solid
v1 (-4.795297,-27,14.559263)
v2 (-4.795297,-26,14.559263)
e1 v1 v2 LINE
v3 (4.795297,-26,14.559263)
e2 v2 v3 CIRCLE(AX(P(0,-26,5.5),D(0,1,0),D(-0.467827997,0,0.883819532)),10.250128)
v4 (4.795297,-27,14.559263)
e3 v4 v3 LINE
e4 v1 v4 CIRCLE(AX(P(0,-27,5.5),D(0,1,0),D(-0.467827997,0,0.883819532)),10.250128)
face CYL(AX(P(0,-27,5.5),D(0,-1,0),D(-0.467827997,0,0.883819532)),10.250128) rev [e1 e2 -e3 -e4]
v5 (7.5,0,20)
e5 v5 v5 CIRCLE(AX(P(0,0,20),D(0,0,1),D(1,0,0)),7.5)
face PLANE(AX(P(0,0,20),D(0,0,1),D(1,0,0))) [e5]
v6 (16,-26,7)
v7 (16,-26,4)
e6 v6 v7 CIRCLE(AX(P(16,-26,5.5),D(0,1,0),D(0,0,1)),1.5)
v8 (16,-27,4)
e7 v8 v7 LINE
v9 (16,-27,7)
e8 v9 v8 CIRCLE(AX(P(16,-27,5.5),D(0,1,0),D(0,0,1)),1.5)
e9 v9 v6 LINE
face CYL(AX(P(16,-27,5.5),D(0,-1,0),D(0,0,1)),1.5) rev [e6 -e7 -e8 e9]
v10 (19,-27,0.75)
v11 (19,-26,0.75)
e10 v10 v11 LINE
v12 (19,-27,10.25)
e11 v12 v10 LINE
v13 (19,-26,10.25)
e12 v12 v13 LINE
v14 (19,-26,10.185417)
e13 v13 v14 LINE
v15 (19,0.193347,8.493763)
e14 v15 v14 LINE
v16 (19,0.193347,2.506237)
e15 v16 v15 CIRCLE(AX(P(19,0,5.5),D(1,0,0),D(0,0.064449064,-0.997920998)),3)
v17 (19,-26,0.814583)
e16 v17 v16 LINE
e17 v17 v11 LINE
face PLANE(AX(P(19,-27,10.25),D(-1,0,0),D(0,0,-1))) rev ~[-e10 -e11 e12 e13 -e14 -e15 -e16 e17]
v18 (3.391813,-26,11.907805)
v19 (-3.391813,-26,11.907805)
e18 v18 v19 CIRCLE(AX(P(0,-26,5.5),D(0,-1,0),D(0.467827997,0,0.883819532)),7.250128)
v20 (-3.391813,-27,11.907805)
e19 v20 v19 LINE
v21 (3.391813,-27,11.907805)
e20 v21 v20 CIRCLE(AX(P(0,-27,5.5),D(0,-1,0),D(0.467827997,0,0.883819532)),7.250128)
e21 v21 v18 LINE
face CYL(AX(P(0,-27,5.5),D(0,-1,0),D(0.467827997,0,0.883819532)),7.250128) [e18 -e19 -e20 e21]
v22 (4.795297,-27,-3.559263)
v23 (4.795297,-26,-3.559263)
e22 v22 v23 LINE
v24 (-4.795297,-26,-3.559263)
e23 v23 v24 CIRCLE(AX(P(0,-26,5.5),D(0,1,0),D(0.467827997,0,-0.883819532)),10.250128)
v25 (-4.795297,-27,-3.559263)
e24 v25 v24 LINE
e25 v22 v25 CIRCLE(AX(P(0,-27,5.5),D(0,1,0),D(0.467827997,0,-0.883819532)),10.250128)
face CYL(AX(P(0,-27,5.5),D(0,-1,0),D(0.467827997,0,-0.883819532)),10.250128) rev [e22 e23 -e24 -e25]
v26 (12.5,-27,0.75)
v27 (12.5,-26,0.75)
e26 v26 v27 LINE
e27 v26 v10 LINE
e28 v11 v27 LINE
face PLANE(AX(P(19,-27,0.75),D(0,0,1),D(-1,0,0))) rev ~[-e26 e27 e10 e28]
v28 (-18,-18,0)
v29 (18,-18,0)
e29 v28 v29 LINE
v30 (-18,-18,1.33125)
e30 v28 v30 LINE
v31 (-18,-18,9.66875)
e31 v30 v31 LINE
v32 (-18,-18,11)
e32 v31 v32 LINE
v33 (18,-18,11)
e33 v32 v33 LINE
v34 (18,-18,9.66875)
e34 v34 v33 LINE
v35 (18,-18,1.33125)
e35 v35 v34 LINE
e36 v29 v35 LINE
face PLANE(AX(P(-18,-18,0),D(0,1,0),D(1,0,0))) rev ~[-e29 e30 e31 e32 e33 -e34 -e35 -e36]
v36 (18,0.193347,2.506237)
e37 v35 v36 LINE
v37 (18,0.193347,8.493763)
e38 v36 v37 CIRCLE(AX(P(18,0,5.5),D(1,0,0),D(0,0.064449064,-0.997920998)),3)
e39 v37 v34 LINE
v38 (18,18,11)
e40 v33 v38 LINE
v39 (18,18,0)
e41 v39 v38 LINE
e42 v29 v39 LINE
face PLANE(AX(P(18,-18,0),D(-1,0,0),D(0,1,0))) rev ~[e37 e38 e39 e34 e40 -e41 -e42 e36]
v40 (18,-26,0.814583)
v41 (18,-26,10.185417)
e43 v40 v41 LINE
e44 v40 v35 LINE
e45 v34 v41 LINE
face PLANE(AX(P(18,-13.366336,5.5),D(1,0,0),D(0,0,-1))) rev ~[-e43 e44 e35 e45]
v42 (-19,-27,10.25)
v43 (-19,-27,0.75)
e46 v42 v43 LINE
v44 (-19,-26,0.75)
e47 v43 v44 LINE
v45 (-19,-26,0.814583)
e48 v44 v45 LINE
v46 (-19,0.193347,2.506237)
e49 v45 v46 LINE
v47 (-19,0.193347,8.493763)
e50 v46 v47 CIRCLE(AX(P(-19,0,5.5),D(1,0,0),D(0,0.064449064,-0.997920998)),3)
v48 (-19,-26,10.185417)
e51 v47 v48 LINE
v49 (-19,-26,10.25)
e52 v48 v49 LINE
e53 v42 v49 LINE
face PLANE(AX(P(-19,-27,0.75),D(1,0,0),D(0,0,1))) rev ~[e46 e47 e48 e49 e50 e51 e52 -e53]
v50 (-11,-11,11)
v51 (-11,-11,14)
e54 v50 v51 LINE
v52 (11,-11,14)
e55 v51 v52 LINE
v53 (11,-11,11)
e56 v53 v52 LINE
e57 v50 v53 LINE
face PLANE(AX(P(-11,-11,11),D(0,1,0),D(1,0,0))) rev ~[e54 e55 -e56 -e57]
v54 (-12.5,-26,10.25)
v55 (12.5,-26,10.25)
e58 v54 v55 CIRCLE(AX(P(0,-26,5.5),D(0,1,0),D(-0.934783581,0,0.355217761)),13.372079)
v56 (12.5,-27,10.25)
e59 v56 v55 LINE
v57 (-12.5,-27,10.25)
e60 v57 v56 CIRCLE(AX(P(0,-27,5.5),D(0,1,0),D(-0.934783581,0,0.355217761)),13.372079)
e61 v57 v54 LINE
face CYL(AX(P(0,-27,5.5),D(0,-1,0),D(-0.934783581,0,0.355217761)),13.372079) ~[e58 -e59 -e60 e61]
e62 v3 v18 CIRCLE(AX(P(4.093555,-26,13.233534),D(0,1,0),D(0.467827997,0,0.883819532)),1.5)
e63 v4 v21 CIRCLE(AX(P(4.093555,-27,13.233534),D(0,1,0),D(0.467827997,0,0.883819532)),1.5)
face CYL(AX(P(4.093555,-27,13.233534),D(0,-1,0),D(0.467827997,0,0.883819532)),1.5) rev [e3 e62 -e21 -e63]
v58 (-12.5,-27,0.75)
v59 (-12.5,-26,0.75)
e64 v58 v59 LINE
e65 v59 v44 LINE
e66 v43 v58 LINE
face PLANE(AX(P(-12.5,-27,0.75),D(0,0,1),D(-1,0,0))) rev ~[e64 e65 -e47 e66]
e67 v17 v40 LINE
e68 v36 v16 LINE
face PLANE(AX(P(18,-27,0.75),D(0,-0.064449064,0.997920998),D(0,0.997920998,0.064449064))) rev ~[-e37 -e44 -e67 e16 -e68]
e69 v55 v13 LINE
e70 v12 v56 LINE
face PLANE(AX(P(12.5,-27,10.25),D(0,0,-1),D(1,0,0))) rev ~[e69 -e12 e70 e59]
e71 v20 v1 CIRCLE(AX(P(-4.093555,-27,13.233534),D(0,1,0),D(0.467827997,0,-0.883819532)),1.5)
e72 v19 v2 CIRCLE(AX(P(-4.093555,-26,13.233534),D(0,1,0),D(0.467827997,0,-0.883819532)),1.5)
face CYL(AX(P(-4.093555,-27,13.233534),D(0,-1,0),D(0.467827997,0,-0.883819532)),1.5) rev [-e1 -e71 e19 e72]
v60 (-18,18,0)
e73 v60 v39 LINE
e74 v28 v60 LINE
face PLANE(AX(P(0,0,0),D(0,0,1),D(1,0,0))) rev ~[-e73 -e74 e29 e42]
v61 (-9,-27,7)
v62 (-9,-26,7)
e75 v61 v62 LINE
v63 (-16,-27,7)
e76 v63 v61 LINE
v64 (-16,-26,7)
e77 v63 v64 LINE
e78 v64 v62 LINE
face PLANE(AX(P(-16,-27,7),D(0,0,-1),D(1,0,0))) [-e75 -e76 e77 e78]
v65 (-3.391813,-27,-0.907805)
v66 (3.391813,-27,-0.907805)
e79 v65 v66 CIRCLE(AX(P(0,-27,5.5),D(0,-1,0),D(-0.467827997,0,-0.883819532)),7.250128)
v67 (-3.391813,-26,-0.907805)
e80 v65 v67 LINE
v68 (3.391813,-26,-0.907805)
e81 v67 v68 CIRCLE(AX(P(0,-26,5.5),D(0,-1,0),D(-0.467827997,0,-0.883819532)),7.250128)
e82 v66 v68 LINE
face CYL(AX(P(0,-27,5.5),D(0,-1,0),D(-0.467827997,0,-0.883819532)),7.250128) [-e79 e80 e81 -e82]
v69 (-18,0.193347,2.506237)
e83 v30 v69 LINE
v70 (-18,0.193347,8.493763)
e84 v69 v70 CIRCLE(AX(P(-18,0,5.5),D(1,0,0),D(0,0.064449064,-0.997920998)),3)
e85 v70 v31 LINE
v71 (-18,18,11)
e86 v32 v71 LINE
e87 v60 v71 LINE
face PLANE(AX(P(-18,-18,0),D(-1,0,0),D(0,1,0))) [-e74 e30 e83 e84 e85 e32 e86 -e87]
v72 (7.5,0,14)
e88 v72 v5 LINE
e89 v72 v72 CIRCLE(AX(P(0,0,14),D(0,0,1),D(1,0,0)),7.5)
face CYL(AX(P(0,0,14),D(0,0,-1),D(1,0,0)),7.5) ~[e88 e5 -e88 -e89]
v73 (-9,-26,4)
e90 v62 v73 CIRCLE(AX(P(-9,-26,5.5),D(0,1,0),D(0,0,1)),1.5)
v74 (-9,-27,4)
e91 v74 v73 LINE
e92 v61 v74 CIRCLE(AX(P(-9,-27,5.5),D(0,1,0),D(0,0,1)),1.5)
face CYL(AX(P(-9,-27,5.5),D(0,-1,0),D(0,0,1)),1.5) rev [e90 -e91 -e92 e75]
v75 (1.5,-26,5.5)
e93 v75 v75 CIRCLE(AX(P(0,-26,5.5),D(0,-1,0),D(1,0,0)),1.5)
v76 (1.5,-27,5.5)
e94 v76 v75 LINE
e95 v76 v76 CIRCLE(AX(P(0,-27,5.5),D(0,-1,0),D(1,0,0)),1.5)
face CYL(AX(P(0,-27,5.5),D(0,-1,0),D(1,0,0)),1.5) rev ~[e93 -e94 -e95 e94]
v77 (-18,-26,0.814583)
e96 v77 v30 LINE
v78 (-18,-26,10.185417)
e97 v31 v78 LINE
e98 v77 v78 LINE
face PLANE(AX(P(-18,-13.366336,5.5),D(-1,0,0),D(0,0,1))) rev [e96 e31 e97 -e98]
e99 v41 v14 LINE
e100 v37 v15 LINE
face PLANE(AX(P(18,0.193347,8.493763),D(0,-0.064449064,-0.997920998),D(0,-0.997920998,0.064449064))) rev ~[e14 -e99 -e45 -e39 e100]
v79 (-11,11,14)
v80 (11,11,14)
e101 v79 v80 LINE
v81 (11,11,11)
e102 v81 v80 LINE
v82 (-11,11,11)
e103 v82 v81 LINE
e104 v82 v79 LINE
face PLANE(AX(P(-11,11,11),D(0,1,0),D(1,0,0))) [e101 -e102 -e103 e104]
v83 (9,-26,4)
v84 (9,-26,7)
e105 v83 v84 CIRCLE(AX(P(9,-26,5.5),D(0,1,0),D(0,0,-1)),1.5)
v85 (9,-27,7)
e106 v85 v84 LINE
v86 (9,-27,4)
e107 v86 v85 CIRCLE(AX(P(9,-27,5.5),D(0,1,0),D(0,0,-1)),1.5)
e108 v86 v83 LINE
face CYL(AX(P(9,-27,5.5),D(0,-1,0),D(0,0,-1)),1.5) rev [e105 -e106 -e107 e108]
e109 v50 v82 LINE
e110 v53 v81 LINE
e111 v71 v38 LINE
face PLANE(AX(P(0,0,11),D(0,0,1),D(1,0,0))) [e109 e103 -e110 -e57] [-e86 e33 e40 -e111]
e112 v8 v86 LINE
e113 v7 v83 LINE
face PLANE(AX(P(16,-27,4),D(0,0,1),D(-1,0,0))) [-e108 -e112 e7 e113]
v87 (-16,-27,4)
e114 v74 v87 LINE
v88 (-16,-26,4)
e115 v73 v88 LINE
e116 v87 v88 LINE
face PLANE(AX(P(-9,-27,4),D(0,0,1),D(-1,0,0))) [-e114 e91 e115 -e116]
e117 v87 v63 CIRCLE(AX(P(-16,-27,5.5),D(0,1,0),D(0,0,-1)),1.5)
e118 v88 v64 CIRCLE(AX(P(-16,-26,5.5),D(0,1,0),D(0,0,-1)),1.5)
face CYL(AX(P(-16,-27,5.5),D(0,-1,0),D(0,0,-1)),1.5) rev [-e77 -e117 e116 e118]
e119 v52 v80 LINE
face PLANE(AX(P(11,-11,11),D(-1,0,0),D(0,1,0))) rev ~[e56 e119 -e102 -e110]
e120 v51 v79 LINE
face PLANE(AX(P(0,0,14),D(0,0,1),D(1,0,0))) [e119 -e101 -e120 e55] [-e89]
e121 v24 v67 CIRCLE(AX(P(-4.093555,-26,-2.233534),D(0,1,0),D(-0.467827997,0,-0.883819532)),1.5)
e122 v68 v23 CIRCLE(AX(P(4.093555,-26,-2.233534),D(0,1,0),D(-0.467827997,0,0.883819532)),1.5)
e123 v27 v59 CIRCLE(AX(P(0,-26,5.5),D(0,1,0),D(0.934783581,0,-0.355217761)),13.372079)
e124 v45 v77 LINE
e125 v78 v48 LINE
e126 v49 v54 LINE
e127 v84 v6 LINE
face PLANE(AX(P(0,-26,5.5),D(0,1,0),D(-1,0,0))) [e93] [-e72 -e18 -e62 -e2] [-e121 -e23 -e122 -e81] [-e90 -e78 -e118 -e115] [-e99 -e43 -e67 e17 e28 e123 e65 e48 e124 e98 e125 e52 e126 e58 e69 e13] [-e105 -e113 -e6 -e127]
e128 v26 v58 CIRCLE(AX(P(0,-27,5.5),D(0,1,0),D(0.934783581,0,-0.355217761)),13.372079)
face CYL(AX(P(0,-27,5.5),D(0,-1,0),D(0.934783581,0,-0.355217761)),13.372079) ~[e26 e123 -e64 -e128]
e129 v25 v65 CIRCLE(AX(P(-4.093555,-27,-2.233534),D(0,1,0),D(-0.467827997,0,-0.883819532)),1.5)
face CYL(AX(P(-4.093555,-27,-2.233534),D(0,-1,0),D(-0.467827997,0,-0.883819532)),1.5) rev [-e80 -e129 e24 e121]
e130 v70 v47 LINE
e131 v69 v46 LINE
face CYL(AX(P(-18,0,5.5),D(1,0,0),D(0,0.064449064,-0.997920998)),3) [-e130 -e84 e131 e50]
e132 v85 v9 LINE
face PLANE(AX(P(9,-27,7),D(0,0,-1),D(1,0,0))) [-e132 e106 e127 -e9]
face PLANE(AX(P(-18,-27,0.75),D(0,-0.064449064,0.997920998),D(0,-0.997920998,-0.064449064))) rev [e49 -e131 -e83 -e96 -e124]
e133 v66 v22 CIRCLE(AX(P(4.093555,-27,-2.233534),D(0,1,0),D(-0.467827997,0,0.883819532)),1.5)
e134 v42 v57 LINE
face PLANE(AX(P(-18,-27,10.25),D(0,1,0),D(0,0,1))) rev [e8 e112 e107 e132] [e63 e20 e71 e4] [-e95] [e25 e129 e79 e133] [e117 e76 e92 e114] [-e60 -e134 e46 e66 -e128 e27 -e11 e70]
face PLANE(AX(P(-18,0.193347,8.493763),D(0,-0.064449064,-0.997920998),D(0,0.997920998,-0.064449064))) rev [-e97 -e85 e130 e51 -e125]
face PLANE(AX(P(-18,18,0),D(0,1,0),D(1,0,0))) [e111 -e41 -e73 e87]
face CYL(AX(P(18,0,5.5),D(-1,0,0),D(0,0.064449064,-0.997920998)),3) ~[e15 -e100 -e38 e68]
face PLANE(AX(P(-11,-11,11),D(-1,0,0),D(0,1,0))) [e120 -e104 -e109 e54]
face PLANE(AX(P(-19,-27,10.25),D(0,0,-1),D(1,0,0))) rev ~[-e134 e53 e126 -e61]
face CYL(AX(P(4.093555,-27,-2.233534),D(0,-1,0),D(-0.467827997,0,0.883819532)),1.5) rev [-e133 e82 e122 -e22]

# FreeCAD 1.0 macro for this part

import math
import FreeCAD as App
import Part
import Sketcher

V = App.Vector
Q = App.Units.Quantity

doc = App.newDocument("Part")
params = doc.addObject("Spreadsheet::Sheet", "Params")
for row, (alias, value) in enumerate([
    ("sketch1_width", "36 mm"),
    ("pad1_length", "11 mm"),
    ("sketch2_width", "22 mm"),
    ("pad2_length", "3 mm"),
    ("sketch3_diameter", "15 mm"),
    ("pad3_length", "6 mm"),
    ("sketch4_radius", "3 mm"),
    ("sketch4_height", "9.5 mm"),
    ("pad4_length", "1 mm"),
    ("sketch5_width", "6.5 mm"),
    ("sketch5_height", "9.5 mm"),
    ("pad5_length", "1 mm"),
    ("sketch6_diameter", "3 mm"),
    ("sketch6_width", "7 mm"),
    ("pocket1_length", "1 mm"),
], start=1):
    params.set(f"A{row}", alias)
    params.set(f"B{row}", "=" + value)
    params.setAlias(f"B{row}", alias)

body = doc.addObject("PartDesign::Body", "Body")

sketch1 = doc.addObject("Sketcher::SketchObject", "Sketch")
body.addObject(sketch1)
sketch1.AttachmentSupport = (doc.XY_Plane, [""])
sketch1.MapMode = "FlatFace"
sketch1.addGeometry([
    Part.LineSegment(V(-18, 18, 0), V(-18, -18, 0)),
    Part.LineSegment(V(-18, -18, 0), V(18, -18, 0)),
    Part.LineSegment(V(18, -18, 0), V(18, 18, 0)),
    Part.LineSegment(V(18, 18, 0), V(-18, 18, 0)),
], False)
sketch1.addConstraint([
    Sketcher.Constraint("Coincident", 0, 2, 1, 1),
    Sketcher.Constraint("Coincident", 1, 2, 2, 1),
    Sketcher.Constraint("Coincident", 2, 2, 3, 1),
    Sketcher.Constraint("Coincident", 3, 2, 0, 1),
    Sketcher.Constraint("Vertical", 0),
    Sketcher.Constraint("Horizontal", 1),
    Sketcher.Constraint("Vertical", 2),
    Sketcher.Constraint("Horizontal", 3),
    Sketcher.Constraint("Symmetric", 0, 2, 2, 2, -1, 1),
    Sketcher.Constraint("Equal", 3, 0),
    Sketcher.Constraint("DistanceX", 1, 1, 1, 2, Q("36 mm")),
])
sketch1.setExpression("Constraints[10]", "Params.sketch1_width")
pad1 = doc.addObject("PartDesign::Pad", "Pad")
body.addObject(pad1)
pad1.Profile = sketch1
pad1.setExpression("Length", "Params.pad1_length")

sketch2 = doc.addObject("Sketcher::SketchObject", "Sketch001")
body.addObject(sketch2)
sketch2.AttachmentSupport = (doc.XY_Plane, [""])
sketch2.MapMode = "FlatFace"
sketch2.AttachmentOffset = App.Placement(V(0, 0, 11), App.Rotation())
sketch2.addGeometry([
    Part.LineSegment(V(-11, 11, 0), V(-11, -11, 0)),
    Part.LineSegment(V(-11, -11, 0), V(11, -11, 0)),
    Part.LineSegment(V(11, -11, 0), V(11, 11, 0)),
    Part.LineSegment(V(11, 11, 0), V(-11, 11, 0)),
], False)
sketch2.addConstraint([
    Sketcher.Constraint("Coincident", 0, 2, 1, 1),
    Sketcher.Constraint("Coincident", 1, 2, 2, 1),
    Sketcher.Constraint("Coincident", 2, 2, 3, 1),
    Sketcher.Constraint("Coincident", 3, 2, 0, 1),
    Sketcher.Constraint("Vertical", 0),
    Sketcher.Constraint("Horizontal", 1),
    Sketcher.Constraint("Vertical", 2),
    Sketcher.Constraint("Horizontal", 3),
    Sketcher.Constraint("Symmetric", 0, 2, 2, 2, -1, 1),
    Sketcher.Constraint("Equal", 3, 0),
    Sketcher.Constraint("DistanceX", 1, 1, 1, 2, Q("22 mm")),
])
sketch2.setExpression("Constraints[10]", "Params.sketch2_width")
pad2 = doc.addObject("PartDesign::Pad", "Pad001")
body.addObject(pad2)
pad2.Profile = sketch2
pad2.setExpression("Length", "Params.pad2_length")

sketch3 = doc.addObject("Sketcher::SketchObject", "Sketch002")
body.addObject(sketch3)
sketch3.AttachmentSupport = (doc.XY_Plane, [""])
sketch3.MapMode = "FlatFace"
sketch3.AttachmentOffset = App.Placement(V(0, 0, 14), App.Rotation())
sketch3.addGeometry(Part.Circle(V(0, 0, 0), V(0, 0, 1), 8), False)
sketch3.addConstraint([
    Sketcher.Constraint("Coincident", 0, 3, -1, 1),
    Sketcher.Constraint("Diameter", 0, Q("15 mm")),
])
sketch3.setExpression("Constraints[1]", "Params.sketch3_diameter")
pad3 = doc.addObject("PartDesign::Pad", "Pad002")
body.addObject(pad3)
pad3.Profile = sketch3
pad3.setExpression("Length", "Params.pad3_length")

sketch4 = doc.addObject("Sketcher::SketchObject", "Sketch003")
body.addObject(sketch4)
sketch4.AttachmentSupport = (doc.YZ_Plane, [""])
sketch4.MapMode = "FlatFace"
sketch4.AttachmentOffset = App.Placement(V(0, 0, 18), App.Rotation())
sketch4.addGeometry([
    Part.LineSegment(V(0.2, 8.5, 0), V(-27, 10.2, 0)),
    Part.LineSegment(V(-27, 10.2, 0), V(-27, 0.8, 0)),
    Part.LineSegment(V(-27, 0.8, 0), V(0.2, 2.5, 0)),
    Part.ArcOfCircle(Part.Circle(V(0, 5.5, 0), V(0, 0, 1), 3), math.radians(-86), math.radians(86)),
], False)
sketch4.addConstraint([
    Sketcher.Constraint("Coincident", 0, 2, 1, 1),
    Sketcher.Constraint("Coincident", 1, 2, 2, 1),
    Sketcher.Constraint("Tangent", 2, 2, 3, 1),
    Sketcher.Constraint("Tangent", 3, 2, 0, 1),
    Sketcher.Constraint("Vertical", 1),
    Sketcher.Constraint("PointOnObject", 3, 3, -2),
    Sketcher.Constraint("Vertical", 2, 2, 3, 2),
    Sketcher.Constraint("Radius", 3, Q("3 mm")),
    Sketcher.Constraint("DistanceY", 1, 2, 1, 1, Q("9.5 mm")),
    Sketcher.Constraint("DistanceX", 0, 2, -1, 1, Q("27 mm")),
    Sketcher.Constraint("DistanceY", -1, 1, 3, 3, Q("5.5 mm")),
])
sketch4.setExpression("Constraints[7]", "Params.sketch4_radius")
sketch4.setExpression("Constraints[8]", "Params.sketch4_height")
pad4 = doc.addObject("PartDesign::Pad", "Pad003")
body.addObject(pad4)
pad4.Profile = sketch4
pad4.setExpression("Length", "Params.pad4_length")
doc.recompute()

mirrored = doc.addObject("PartDesign::Mirrored", "Mirrored")
body.addObject(mirrored)
mirrored.Originals = [pad4]
mirrored.MirrorPlane = (doc.YZ_Plane, [""])
body.Tip = mirrored

sketch5 = doc.addObject("Sketcher::SketchObject", "Sketch004")
body.addObject(sketch5)
sketch5.AttachmentSupport = (doc.XZ_Plane, [""])
sketch5.MapMode = "FlatFace"
sketch5.AttachmentOffset = App.Placement(V(0, 0, 27), App.Rotation())
sketch5.addGeometry([
    Part.LineSegment(V(-12, 10, 0), V(-19, 10, 0)),
    Part.LineSegment(V(-19, 10, 0), V(-19, 1, 0)),
    Part.LineSegment(V(-19, 1, 0), V(-12, 1, 0)),
    Part.ArcOfCircle(Part.Circle(V(0, 6, 0), V(0, 0, 1), 13), math.radians(-159), math.radians(-21)),
    Part.LineSegment(V(12, 1, 0), V(19, 1, 0)),
    Part.LineSegment(V(19, 1, 0), V(19, 10, 0)),
    Part.LineSegment(V(19, 10, 0), V(12, 10, 0)),
    Part.ArcOfCircle(Part.Circle(V(0, 6, 0), V(0, 0, 1), 13), math.radians(21), math.radians(159)),
], False)
sketch5.addConstraint([
    Sketcher.Constraint("Coincident", 0, 2, 1, 1),
    Sketcher.Constraint("Coincident", 1, 2, 2, 1),
    Sketcher.Constraint("Coincident", 2, 2, 3, 1),
    Sketcher.Constraint("Coincident", 3, 2, 4, 1),
    Sketcher.Constraint("Coincident", 4, 2, 5, 1),
    Sketcher.Constraint("Coincident", 5, 2, 6, 1),
    Sketcher.Constraint("Coincident", 6, 2, 7, 1),
    Sketcher.Constraint("Coincident", 7, 2, 0, 1),
    Sketcher.Constraint("Horizontal", 0),
    Sketcher.Constraint("Vertical", 1),
    Sketcher.Constraint("Horizontal", 2),
    Sketcher.Constraint("Horizontal", 4),
    Sketcher.Constraint("Vertical", 5),
    Sketcher.Constraint("Horizontal", 6),
    Sketcher.Constraint("Coincident", 7, 3, 3, 3),
    Sketcher.Constraint("Equal", 3, 7),
    Sketcher.Constraint("Symmetric", 2, 2, 3, 2, -2),
    Sketcher.Constraint("Symmetric", 0, 2, 5, 2, -2),
    Sketcher.Constraint("Vertical", 3, 2, 6, 2),
    Sketcher.Constraint("DistanceX", 0, 2, 0, 1, Q("6.5 mm")),
    Sketcher.Constraint("DistanceY", 1, 2, 1, 1, Q("9.5 mm")),
    Sketcher.Constraint("DistanceX", 0, 2, -1, 1, Q("19 mm")),
    Sketcher.Constraint("DistanceY", -1, 1, 3, 3, Q("5.5 mm")),
])
sketch5.setExpression("Constraints[19]", "Params.sketch5_width")
sketch5.setExpression("Constraints[20]", "Params.sketch5_height")
pad5 = doc.addObject("PartDesign::Pad", "Pad004")
body.addObject(pad5)
pad5.Profile = sketch5
pad5.setExpression("Length", "Params.pad5_length")
pad5.Reversed = True

sketch6 = doc.addObject("Sketcher::SketchObject", "Sketch005")
body.addObject(sketch6)
sketch6.AttachmentSupport = (doc.XZ_Plane, [""])
sketch6.MapMode = "FlatFace"
sketch6.AttachmentOffset = App.Placement(V(0, 0, 27), App.Rotation())
sketch6.addGeometry([
    Part.Circle(V(0, 5.5, 0), V(0, 0, 1), 1.5),
    Part.LineSegment(V(-9, 7, 0), V(-16, 7, 0)),
    Part.ArcOfCircle(Part.Circle(V(-16, 5.5, 0), V(0, 0, 1), 1.5), math.radians(90), math.radians(270)),
    Part.LineSegment(V(-16, 4, 0), V(-9, 4, 0)),
    Part.ArcOfCircle(Part.Circle(V(-9, 5.5, 0), V(0, 0, 1), 1.5), math.radians(-90), math.radians(90)),
    Part.LineSegment(V(16, 7, 0), V(9, 7, 0)),
    Part.ArcOfCircle(Part.Circle(V(9, 5.5, 0), V(0, 0, 1), 1.5), math.radians(90), math.radians(270)),
    Part.LineSegment(V(9, 4, 0), V(16, 4, 0)),
    Part.ArcOfCircle(Part.Circle(V(16, 5.5, 0), V(0, 0, 1), 1.5), math.radians(-90), math.radians(90)),
    Part.ArcOfCircle(Part.Circle(V(0, 5.5, 0), V(0, 0, 1), 10.3), math.radians(62), math.radians(118)),
    Part.ArcOfCircle(Part.Circle(V(-4.1, 13.2, 0), V(0, 0, 1), 1.5), math.radians(118), math.radians(298)),
    Part.ArcOfCircle(Part.Circle(V(0, 5.5, 0), V(0, 0, 1), 7.3), math.radians(62), math.radians(118)),
    Part.ArcOfCircle(Part.Circle(V(4.1, 13.2, 0), V(0, 0, 1), 1.5), math.radians(-118), math.radians(62)),
    Part.ArcOfCircle(Part.Circle(V(-4.1, -2.2, 0), V(0, 0, 1), 1.5), math.radians(62), math.radians(242)),
    Part.ArcOfCircle(Part.Circle(V(0, 5.5, 0), V(0, 0, 1), 10.3), math.radians(-118), math.radians(-62)),
    Part.ArcOfCircle(Part.Circle(V(4.1, -2.2, 0), V(0, 0, 1), 1.5), math.radians(-62), math.radians(118)),
    Part.ArcOfCircle(Part.Circle(V(0, 5.5, 0), V(0, 0, 1), 7.3), math.radians(-118), math.radians(-62)),
], False)
sketch6.addConstraint([
    Sketcher.Constraint("Tangent", 1, 2, 2, 1),
    Sketcher.Constraint("Tangent", 2, 2, 3, 1),
    Sketcher.Constraint("Tangent", 3, 2, 4, 1),
    Sketcher.Constraint("Tangent", 4, 2, 1, 1),
    Sketcher.Constraint("Tangent", 5, 2, 6, 1),
    Sketcher.Constraint("Tangent", 6, 2, 7, 1),
    Sketcher.Constraint("Tangent", 7, 2, 8, 1),
    Sketcher.Constraint("Tangent", 8, 2, 5, 1),
    Sketcher.Constraint("Tangent", 9, 2, 10, 1),
    Sketcher.Constraint("Tangent", 10, 2, 11, 2),
    Sketcher.Constraint("Tangent", 11, 1, 12, 1),
    Sketcher.Constraint("Tangent", 12, 2, 9, 1),
    Sketcher.Constraint("Tangent", 13, 2, 14, 1),
    Sketcher.Constraint("Tangent", 14, 2, 15, 1),
    Sketcher.Constraint("Tangent", 15, 2, 16, 2),
    Sketcher.Constraint("Tangent", 16, 1, 13, 1),
    Sketcher.Constraint("Horizontal", 1),
    Sketcher.Constraint("Horizontal", 3),
    Sketcher.Constraint("Horizontal", 5),
    Sketcher.Constraint("Horizontal", 7),
    Sketcher.Constraint("Coincident", 9, 3, 0, 3),
    Sketcher.Constraint("Coincident", 11, 3, 0, 3),
    Sketcher.Constraint("Coincident", 14, 3, 0, 3),
    Sketcher.Constraint("Coincident", 16, 3, 0, 3),
    Sketcher.Constraint("Equal", 0, 2),
    Sketcher.Constraint("Equal", 4, 6),
    Sketcher.Constraint("Equal", 8, 10),
    Sketcher.Constraint("Equal", 12, 13),
    Sketcher.Constraint("Equal", 9, 14),
    Sketcher.Constraint("Symmetric", 4, 3, 6, 3, -2),
    Sketcher.Constraint("Symmetric", 10, 3, 12, 3, -2),
    Sketcher.Constraint("Horizontal", 0, 3, 2, 3),
    Sketcher.Constraint("Horizontal", 13, 3, 15, 3),
    Sketcher.Constraint("Vertical", 10, 3, 13, 3),
    Sketcher.Constraint("Equal", 3, 5),
    Sketcher.Constraint("Diameter", 0, Q("3 mm")),
    Sketcher.Constraint("DistanceX", 1, 2, 1, 1, Q("7 mm")),
    Sketcher.Constraint("DistanceX", 2, 3, -1, 1, Q("16 mm")),
    Sketcher.Constraint("DistanceY", -1, 1, 1, 2, Q("7 mm")),
    Sketcher.Constraint("Radius", 9, Q("10.250128 mm")),
    Sketcher.Constraint("DistanceX", 10, 3, 12, 3, Q("8.18711 mm")),
])
sketch6.setExpression("Constraints[35]", "Params.sketch6_diameter")
sketch6.setExpression("Constraints[36]", "Params.sketch6_width")
pocket1 = doc.addObject("PartDesign::Pocket", "Pocket")
body.addObject(pocket1)
pocket1.Profile = sketch6
pocket1.setExpression("Length", "Params.pocket1_length")

doc.recompute()
